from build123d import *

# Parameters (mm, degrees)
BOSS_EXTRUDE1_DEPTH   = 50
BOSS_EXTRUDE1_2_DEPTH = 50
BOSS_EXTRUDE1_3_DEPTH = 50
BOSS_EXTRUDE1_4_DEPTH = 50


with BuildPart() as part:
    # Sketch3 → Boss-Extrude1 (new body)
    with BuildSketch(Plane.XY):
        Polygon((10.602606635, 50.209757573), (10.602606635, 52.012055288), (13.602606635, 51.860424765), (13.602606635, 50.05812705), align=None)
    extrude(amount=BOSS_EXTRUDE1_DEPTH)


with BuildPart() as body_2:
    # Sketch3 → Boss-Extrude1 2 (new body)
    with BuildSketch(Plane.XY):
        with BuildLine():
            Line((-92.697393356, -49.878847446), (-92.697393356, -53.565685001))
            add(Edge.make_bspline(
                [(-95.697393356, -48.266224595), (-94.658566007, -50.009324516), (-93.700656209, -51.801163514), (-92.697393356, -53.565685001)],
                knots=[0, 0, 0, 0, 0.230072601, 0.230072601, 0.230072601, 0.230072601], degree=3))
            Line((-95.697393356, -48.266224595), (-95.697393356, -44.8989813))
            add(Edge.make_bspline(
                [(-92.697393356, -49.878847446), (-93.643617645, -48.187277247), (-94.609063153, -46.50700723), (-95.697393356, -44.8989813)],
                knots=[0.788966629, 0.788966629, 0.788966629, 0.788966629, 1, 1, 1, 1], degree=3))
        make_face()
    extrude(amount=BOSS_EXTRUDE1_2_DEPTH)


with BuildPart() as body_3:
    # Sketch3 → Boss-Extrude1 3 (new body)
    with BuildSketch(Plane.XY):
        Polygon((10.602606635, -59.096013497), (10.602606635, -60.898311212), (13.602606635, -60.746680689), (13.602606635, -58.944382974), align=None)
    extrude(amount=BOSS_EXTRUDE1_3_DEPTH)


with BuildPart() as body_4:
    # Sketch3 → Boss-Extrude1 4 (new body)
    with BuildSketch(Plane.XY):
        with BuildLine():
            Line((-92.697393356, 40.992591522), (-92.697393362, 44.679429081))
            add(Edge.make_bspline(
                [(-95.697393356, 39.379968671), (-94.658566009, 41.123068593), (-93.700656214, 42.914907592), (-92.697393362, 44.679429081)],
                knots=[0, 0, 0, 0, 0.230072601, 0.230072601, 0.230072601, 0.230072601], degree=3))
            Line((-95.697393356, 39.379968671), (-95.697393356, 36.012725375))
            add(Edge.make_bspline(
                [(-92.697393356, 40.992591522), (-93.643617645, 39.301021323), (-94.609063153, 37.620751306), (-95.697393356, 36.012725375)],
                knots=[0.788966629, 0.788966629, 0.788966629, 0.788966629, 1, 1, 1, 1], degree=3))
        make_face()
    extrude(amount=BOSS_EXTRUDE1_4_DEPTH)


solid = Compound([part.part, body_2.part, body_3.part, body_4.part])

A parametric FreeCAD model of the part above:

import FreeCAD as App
import Part
import Sketcher


def add_polygon(sketch, points):
    """Adds a closed chain of lines whose ends are joined by coincident constraints."""
    first, n = sketch.GeometryCount, len(points)
    for a, b in zip(points, points[1:] + points[:1]):
        sketch.addGeometry(Part.LineSegment(App.Vector(*a, 0), App.Vector(*b, 0)), False)
    for i in range(n):
        sketch.addConstraint(Sketcher.Constraint("Coincident", first + i, 2, first + (i + 1) % n, 1))

doc = App.newDocument("Part")
params = doc.addObject("Spreadsheet::Sheet", "Params")
for row, (alias, value) in enumerate([
    ("pad1_length", "50 mm"),
    ("pad2_length", "50 mm"),
    ("pad3_length", "50 mm"),
    ("pad4_length", "50 mm"),
], start=1):
    params.set(f"A{row}", alias)
    params.set(f"B{row}", "=" + value)
    params.setAlias(f"B{row}", alias)

body = doc.addObject("PartDesign::Body", "Body")

# Sketch on XY plane
sketch1 = doc.addObject("Sketcher::SketchObject", "Sketch")
body.addObject(sketch1)
sketch1.AttachmentSupport = (doc.XY_Plane, [""])
sketch1.MapMode = "FlatFace"
add_polygon(sketch1, [(10.6, 52), (10.6, 50.2), (13.6, 50.1), (13.6, 51.9)])  # lines 0-3
sketch1.addConstraint(Sketcher.Constraint("Vertical", 0))
sketch1.addConstraint(Sketcher.Constraint("Vertical", 2))
sketch1.addConstraint(Sketcher.Constraint("Parallel", 1, 3))
sketch1.addConstraint(Sketcher.Constraint("DistanceX", 0, 2, 1, 2, 3.0))
sketch1.addConstraint(Sketcher.Constraint("Distance", 1, 3.00383))
sketch1.addConstraint(Sketcher.Constraint("DistanceY", 0, 2, 0, 1, 1.802298))
sketch1.addConstraint(Sketcher.Constraint("DistanceX", -1, 1, 0, 2, 10.602607))
sketch1.addConstraint(Sketcher.Constraint("DistanceY", -1, 1, 0, 2, 50.209758))
pad1 = doc.addObject("PartDesign::Pad", "Pad")
body.addObject(pad1)
pad1.Profile = sketch1
pad1.setExpression("Length", "Params.pad1_length")
body2 = doc.addObject("PartDesign::Body", "Body001")

# Sketch on XY plane
sketch2 = doc.addObject("Sketcher::SketchObject", "Sketch001")
body2.addObject(sketch2)
sketch2.AttachmentSupport = (doc.getObject("XY_Plane001"), [""])
sketch2.MapMode = "FlatFace"
sketch2.addGeometry(Part.LineSegment(App.Vector(-92.697393, -53.565685, 0), App.Vector(-92.697393, -49.878847, 0)), False)
sketch2.addGeometry(Part.BSplineCurve([App.Vector(-92.697393, -49.878847, 0), App.Vector(-93.643618, -48.187277, 0), App.Vector(-94.609063, -46.507007, 0), App.Vector(-95.697393, -44.898981, 0)], [4, 4], [0.788966629, 1], False, 3, [1, 1, 1, 1], False), False)
sketch2.addGeometry(Part.LineSegment(App.Vector(-95.697393, -44.898981, 0), App.Vector(-95.697393, -48.266225, 0)), False)
sketch2.addGeometry(Part.BSplineCurve([App.Vector(-95.697393, -48.266225, 0), App.Vector(-94.658566, -50.009325, 0), App.Vector(-93.700656, -51.801164, 0), App.Vector(-92.697393, -53.565685, 0)], [4, 4], [0, 0.230072601], False, 3, [1, 1, 1, 1], False), False)
sketch2.addConstraint(Sketcher.Constraint("Block", 1))
sketch2.addConstraint(Sketcher.Constraint("Block", 3))
sketch2.addConstraint(Sketcher.Constraint("Coincident", 0, 2, 1, 1))
sketch2.addConstraint(Sketcher.Constraint("Coincident", 1, 2, 2, 1))
sketch2.addConstraint(Sketcher.Constraint("Coincident", 2, 2, 3, 1))
sketch2.addConstraint(Sketcher.Constraint("Coincident", 3, 2, 0, 1))
pad2 = doc.addObject("PartDesign::Pad", "Pad001")
body2.addObject(pad2)
pad2.Profile = sketch2
pad2.setExpression("Length", "Params.pad2_length")
body3 = doc.addObject("PartDesign::Body", "Body002")

# Sketch on XY plane
sketch3 = doc.addObject("Sketcher::SketchObject", "Sketch002")
body3.addObject(sketch3)
sketch3.AttachmentSupport = (doc.getObject("XY_Plane002"), [""])
sketch3.MapMode = "FlatFace"
add_polygon(sketch3, [(10.6, -59.1), (10.6, -60.9), (13.6, -60.7), (13.6, -58.9)])  # lines 0-3
sketch3.addConstraint(Sketcher.Constraint("Vertical", 0))
sketch3.addConstraint(Sketcher.Constraint("Vertical", 2))
sketch3.addConstraint(Sketcher.Constraint("Parallel", 1, 3))
sketch3.addConstraint(Sketcher.Constraint("DistanceX", 0, 2, 1, 2, 3.0))
sketch3.addConstraint(Sketcher.Constraint("Distance", 1, 3.00383))
sketch3.addConstraint(Sketcher.Constraint("DistanceY", 0, 2, 0, 1, 1.802298))
sketch3.addConstraint(Sketcher.Constraint("DistanceY", 0, 2, -1, 1, 60.898311))
sketch3.addConstraint(Sketcher.Constraint("DistanceX", -1, 1, 0, 2, 10.602607))
pad3 = doc.addObject("PartDesign::Pad", "Pad002")
body3.addObject(pad3)
pad3.Profile = sketch3
pad3.setExpression("Length", "Params.pad3_length")
body4 = doc.addObject("PartDesign::Body", "Body003")

# Sketch on XY plane
sketch4 = doc.addObject("Sketcher::SketchObject", "Sketch003")
body4.addObject(sketch4)
sketch4.AttachmentSupport = (doc.getObject("XY_Plane003"), [""])
sketch4.MapMode = "FlatFace"
sketch4.addGeometry(Part.LineSegment(App.Vector(-92.697393, 40.992592, 0), App.Vector(-92.697393, 44.679429, 0)), False)
sketch4.addGeometry(Part.BSplineCurve([App.Vector(-95.697393, 39.379969, 0), App.Vector(-94.658566, 41.123069, 0), App.Vector(-93.700656, 42.914908, 0), App.Vector(-92.697393, 44.679429, 0)], [4, 4], [0, 0.230072601], False, 3, [1, 1, 1, 1], False), False)
sketch4.addGeometry(Part.LineSegment(App.Vector(-95.697393, 39.379969, 0), App.Vector(-95.697393, 36.012725, 0)), False)
sketch4.addGeometry(Part.BSplineCurve([App.Vector(-92.697393, 40.992592, 0), App.Vector(-93.643618, 39.301021, 0), App.Vector(-94.609063, 37.620751, 0), App.Vector(-95.697393, 36.012725, 0)], [4, 4], [0.788966629, 1], False, 3, [1, 1, 1, 1], False), False)
sketch4.addConstraint(Sketcher.Constraint("Block", 1))
sketch4.addConstraint(Sketcher.Constraint("Block", 3))
sketch4.addConstraint(Sketcher.Constraint("Coincident", 0, 2, 1, 2))
sketch4.addConstraint(Sketcher.Constraint("Coincident", 1, 1, 2, 1))
sketch4.addConstraint(Sketcher.Constraint("Coincident", 2, 2, 3, 2))
sketch4.addConstraint(Sketcher.Constraint("Coincident", 3, 1, 0, 1))
pad4 = doc.addObject("PartDesign::Pad", "Pad003")
body4.addObject(pad4)
pad4.Profile = sketch4
pad4.setExpression("Length", "Params.pad4_length")

doc.recompute()
